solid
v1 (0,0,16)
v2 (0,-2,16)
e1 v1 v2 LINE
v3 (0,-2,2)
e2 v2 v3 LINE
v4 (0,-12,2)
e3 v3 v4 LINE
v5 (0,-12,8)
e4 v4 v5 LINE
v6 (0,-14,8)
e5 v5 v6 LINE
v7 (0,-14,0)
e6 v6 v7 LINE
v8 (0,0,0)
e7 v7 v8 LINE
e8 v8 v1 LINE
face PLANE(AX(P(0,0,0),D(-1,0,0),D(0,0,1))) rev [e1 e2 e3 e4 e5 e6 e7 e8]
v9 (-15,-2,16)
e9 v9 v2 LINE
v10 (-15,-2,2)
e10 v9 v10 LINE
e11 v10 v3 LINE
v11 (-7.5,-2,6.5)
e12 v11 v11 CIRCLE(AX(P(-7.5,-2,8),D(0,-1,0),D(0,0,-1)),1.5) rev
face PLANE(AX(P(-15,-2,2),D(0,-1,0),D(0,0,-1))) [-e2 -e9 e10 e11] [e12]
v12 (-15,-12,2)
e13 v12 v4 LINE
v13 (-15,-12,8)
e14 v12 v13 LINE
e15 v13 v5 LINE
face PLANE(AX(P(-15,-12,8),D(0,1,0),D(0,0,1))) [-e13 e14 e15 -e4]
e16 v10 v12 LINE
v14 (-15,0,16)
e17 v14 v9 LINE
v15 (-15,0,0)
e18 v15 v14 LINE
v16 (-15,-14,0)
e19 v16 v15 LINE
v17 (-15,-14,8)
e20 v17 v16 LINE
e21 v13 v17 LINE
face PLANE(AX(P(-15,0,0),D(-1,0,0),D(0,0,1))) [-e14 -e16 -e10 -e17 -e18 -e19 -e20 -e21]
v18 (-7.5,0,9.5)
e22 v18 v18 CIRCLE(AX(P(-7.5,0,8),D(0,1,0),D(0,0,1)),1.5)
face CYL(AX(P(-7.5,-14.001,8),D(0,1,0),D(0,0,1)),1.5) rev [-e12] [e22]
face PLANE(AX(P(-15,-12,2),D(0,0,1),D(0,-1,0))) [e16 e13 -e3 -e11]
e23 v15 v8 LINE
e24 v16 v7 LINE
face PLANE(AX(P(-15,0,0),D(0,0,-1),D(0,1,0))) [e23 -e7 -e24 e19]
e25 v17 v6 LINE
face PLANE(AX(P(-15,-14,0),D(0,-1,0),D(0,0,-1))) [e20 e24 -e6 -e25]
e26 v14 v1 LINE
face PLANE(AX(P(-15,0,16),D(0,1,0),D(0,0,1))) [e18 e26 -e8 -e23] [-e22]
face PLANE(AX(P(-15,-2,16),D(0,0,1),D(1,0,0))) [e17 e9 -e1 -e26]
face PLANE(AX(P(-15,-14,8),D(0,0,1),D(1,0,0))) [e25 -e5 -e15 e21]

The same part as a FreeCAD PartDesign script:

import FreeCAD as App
import Part
import Sketcher
from FreeCAD import Vector


def add_polygon(sketch, points):
    """Adds a closed chain of lines whose ends are joined by coincident constraints."""
    first, n = sketch.GeometryCount, len(points)
    for a, b in zip(points, points[1:] + points[:1]):
        sketch.addGeometry(Part.LineSegment(App.Vector(*a, 0), App.Vector(*b, 0)), False)
    for i in range(n):
        sketch.addConstraint(Sketcher.Constraint("Coincident", first + i, 2, first + (i + 1) % n, 1))

doc = App.newDocument("Part")
params = doc.addObject("Spreadsheet::Sheet", "Params")
for row, (alias, value) in enumerate([
    ("sketch1_width", "14 mm"),
    ("sketch1_width2", "2 mm"),
    ("sketch1_height", "16 mm"),
    ("sketch1_height2", "6 mm"),
    ("pad1_length", "15 mm"),
    ("sketch2_diameter", "3 mm"),
], start=1):
    params.set(f"A{row}", alias)
    params.set(f"B{row}", "=" + value)
    params.setAlias(f"B{row}", alias)

body = doc.addObject("PartDesign::Body", "Body")

# Sketch on YZ plane
sketch1 = body.newObject("Sketcher::SketchObject", "Sketch")
sketch1.AttachmentSupport = (doc.getObject("YZ_Plane"), [""])
sketch1.MapMode = "FlatFace"
add_polygon(sketch1, [(-14, 0), (0, 0), (0, 16), (-2, 16), (-2, 2), (-12, 2), (-12, 8), (-14, 8)])  # lines 0-7
sketch1.addConstraint([
    Sketcher.Constraint("Horizontal", 0),
    Sketcher.Constraint("Vertical", 1),
    Sketcher.Constraint("Horizontal", 2),
    Sketcher.Constraint("Vertical", 3),
    Sketcher.Constraint("Horizontal", 4),
    Sketcher.Constraint("Vertical", 5),
    Sketcher.Constraint("Horizontal", 6),
    Sketcher.Constraint("Vertical", 7),
    Sketcher.Constraint("Coincident", 0, 2, -1, 1),
    Sketcher.Constraint("Equal", 2, 6),
    Sketcher.Constraint("Equal", 0, 3),
    Sketcher.Constraint("DistanceX", 0, 1, 0, 2, 14.0),
    Sketcher.Constraint("DistanceX", 2, 2, 2, 1, 2.0),
    Sketcher.Constraint("DistanceY", 1, 1, 1, 2, 16.0),
    Sketcher.Constraint("DistanceY", 5, 1, 5, 2, 6.0),
])
sketch1.setExpression("Constraints[19]", "Params.sketch1_width")
sketch1.setExpression("Constraints[20]", "Params.sketch1_width2")
sketch1.setExpression("Constraints[21]", "Params.sketch1_height")
sketch1.setExpression("Constraints[22]", "Params.sketch1_height2")
pad1 = body.newObject("PartDesign::Pad", "Pad")
pad1.Profile = sketch1
pad1.setExpression("Length", "Params.pad1_length")
pad1.Reversed = True

# Sketch on XZ plane
sketch2 = body.newObject("Sketcher::SketchObject", "Sketch001")
sketch2.AttachmentSupport = (doc.getObject("XZ_Plane"), [""])
sketch2.MapMode = "FlatFace"
sketch2.addGeometry(Part.Circle(Vector(-7.5, 8, 0), Vector(0, 0, 1), 1.5), False)
sketch2.addConstraint([
    Sketcher.Constraint("Diameter", 0, 3.0),
    Sketcher.Constraint("DistanceY", -1, 1, 0, 3, 8.0),
    Sketcher.Constraint("DistanceX", 0, 3, -1, 1, 7.5),
])
sketch2.setExpression("Constraints[0]", "Params.sketch2_diameter")
pocket1 = body.newObject("PartDesign::Pocket", "Pocket")
pocket1.Profile = sketch2
pocket1.Type = "UpToFirst"
pocket1.Reversed = True

doc.recompute()
